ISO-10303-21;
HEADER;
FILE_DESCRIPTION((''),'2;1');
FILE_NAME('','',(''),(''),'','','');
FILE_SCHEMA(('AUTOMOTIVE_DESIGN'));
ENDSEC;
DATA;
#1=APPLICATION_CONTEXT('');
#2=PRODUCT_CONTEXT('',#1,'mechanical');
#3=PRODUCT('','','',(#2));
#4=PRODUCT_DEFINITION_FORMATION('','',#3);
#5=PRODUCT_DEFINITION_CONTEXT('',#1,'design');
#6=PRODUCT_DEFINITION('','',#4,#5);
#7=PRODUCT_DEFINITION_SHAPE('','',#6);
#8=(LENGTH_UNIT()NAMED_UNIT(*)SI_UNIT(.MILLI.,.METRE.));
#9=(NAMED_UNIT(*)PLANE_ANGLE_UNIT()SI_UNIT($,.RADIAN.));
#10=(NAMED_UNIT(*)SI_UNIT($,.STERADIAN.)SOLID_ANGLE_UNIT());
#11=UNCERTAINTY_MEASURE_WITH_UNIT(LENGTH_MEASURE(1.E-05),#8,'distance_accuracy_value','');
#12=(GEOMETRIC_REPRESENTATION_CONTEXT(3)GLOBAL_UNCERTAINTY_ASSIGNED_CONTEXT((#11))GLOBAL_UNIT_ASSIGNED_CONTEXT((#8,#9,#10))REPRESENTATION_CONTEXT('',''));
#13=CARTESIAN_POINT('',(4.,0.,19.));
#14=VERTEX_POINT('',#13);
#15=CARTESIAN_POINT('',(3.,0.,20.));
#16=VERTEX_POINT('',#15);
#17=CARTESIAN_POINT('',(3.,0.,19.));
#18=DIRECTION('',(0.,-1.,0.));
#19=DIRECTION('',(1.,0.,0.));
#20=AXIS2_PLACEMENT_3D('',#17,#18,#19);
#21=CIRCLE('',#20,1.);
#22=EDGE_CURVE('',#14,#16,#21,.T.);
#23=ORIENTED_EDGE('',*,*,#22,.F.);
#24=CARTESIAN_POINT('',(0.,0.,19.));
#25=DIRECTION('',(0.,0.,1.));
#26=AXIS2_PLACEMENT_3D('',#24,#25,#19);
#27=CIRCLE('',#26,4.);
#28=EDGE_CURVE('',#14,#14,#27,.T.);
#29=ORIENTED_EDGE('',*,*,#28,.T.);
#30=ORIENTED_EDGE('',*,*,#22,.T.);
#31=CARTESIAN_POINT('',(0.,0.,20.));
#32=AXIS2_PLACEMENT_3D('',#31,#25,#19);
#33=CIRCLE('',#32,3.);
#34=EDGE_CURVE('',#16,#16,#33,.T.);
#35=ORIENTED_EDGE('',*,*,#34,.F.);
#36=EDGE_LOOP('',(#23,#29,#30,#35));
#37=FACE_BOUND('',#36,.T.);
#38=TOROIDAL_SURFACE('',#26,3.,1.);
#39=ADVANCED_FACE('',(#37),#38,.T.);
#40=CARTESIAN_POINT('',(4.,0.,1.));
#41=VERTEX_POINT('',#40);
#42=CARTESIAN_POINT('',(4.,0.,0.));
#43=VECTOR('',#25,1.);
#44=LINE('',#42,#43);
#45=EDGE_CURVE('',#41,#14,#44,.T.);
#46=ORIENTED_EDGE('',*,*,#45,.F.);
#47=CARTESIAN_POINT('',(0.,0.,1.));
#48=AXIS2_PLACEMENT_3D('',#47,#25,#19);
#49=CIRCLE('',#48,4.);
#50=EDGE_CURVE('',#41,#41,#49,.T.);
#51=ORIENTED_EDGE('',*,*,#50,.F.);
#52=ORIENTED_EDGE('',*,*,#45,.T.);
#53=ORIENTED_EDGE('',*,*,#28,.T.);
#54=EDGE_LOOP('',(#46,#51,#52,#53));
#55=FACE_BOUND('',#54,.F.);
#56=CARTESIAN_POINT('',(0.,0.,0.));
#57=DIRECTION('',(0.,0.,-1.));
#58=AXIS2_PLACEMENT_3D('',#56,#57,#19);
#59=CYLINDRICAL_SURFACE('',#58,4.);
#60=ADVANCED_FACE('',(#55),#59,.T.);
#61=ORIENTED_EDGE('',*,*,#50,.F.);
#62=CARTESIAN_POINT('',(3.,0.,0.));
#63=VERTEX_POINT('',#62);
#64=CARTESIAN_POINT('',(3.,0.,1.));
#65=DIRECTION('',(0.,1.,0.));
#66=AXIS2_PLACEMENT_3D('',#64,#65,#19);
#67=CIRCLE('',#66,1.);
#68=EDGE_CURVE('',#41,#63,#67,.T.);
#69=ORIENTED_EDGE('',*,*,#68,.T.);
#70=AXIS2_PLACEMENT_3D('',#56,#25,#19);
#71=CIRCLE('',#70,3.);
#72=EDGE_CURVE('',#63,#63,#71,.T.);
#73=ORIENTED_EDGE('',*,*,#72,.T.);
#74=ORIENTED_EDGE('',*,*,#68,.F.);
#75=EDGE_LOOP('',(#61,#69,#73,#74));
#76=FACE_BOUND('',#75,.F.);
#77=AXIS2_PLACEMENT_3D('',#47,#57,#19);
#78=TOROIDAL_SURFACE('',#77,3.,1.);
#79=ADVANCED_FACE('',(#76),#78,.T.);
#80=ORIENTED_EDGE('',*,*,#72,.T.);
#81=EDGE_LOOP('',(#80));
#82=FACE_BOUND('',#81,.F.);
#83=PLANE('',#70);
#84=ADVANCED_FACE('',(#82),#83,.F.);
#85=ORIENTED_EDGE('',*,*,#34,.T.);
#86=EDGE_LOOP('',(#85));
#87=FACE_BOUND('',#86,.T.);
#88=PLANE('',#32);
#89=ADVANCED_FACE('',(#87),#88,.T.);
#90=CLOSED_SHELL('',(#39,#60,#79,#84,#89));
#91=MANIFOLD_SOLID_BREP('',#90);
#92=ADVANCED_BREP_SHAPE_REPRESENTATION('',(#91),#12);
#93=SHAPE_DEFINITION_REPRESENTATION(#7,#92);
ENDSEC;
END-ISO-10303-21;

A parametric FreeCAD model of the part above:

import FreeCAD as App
import Part
import Sketcher

V = App.Vector


def edges_at(feature, points):
    """Names of the edges that pass closest to the given points."""
    edges = feature.Shape.Edges
    near = lambda p: min(range(len(edges)), key=lambda i: edges[i].distToShape(Part.Vertex(*p))[0])
    return sorted({f"Edge{near(p) + 1}" for p in points})

doc = App.newDocument("Part")
body = doc.addObject("PartDesign::Body", "Body")

# Sketch on XY plane
sketch1 = body.newObject("Sketcher::SketchObject", "Sketch")
sketch1.AttachmentSupport = (doc.getObject("XY_Plane"), [""])
sketch1.MapMode = "FlatFace"
sketch1.addGeometry(Part.Circle(V(0, 0, 0), V(0, 0, 1), 4), False)
sketch1.addConstraint([
    Sketcher.Constraint("Coincident", 0, 3, -1, 1),
    Sketcher.Constraint("Diameter", 0, 8.0),
])
pad1 = body.newObject("PartDesign::Pad", "Pad")
pad1.Profile = sketch1
pad1.Length = 20
doc.recompute()

fillet = body.newObject("PartDesign::Fillet", "Fillet")
fillet.Base = (pad1, edges_at(pad1, [(-4, 0, 20), (-4, 0, 0)]))
fillet.Radius = 1

doc.recompute()
